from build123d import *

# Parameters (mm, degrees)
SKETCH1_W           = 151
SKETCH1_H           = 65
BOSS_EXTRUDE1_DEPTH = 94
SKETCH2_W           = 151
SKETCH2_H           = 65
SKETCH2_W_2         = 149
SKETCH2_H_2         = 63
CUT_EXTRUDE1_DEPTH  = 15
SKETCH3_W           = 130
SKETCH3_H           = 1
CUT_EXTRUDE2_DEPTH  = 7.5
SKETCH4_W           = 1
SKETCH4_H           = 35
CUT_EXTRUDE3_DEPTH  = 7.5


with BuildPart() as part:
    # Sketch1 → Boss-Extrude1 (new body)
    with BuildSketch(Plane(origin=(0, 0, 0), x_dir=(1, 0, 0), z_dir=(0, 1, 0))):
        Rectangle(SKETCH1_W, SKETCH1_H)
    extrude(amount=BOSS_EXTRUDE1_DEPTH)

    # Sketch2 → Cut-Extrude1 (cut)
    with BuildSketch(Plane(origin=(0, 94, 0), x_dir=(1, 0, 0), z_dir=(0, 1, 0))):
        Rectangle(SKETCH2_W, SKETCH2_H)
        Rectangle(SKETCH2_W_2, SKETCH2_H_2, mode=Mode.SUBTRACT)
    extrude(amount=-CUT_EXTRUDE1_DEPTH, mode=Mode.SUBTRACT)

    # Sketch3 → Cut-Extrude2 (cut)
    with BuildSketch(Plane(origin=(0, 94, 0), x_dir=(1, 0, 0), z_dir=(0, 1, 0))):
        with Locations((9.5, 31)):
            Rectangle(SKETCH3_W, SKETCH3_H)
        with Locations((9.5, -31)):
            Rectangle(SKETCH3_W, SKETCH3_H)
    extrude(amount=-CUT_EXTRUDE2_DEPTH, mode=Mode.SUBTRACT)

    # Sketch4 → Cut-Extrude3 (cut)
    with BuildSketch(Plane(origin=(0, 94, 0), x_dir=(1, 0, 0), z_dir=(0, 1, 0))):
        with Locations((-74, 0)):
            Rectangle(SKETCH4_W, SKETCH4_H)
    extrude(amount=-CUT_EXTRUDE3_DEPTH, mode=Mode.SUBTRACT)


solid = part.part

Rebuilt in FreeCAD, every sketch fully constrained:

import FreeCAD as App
import Part
import Sketcher
from FreeCAD import Vector


def add_polygon(sketch, points):
    """Adds a closed chain of lines whose ends are joined by coincident constraints."""
    first, n = sketch.GeometryCount, len(points)
    for a, b in zip(points, points[1:] + points[:1]):
        sketch.addGeometry(Part.LineSegment(App.Vector(*a, 0), App.Vector(*b, 0)), False)
    for i in range(n):
        sketch.addConstraint(Sketcher.Constraint("Coincident", first + i, 2, first + (i + 1) % n, 1))

doc = App.newDocument("Part")
params = doc.addObject("Spreadsheet::Sheet", "Params")
for row, (alias, value) in enumerate([
    ("sketch1_width", "151 mm"),
    ("sketch1_height", "65 mm"),
    ("pad1_length", "94 mm"),
    ("sketch2_width", "151 mm"),
    ("sketch2_width2", "149 mm"),
    ("sketch2_height", "65 mm"),
    ("sketch2_height2", "63 mm"),
    ("pocket1_length", "15 mm"),
    ("sketch3_width", "130 mm"),
    ("sketch3_height", "1 mm"),
    ("pocket2_length", "7.5 mm"),
    ("sketch4_width", "1 mm"),
    ("sketch4_height", "35 mm"),
    ("pocket3_length", "7.5 mm"),
], start=1):
    params.set(f"A{row}", alias)
    params.set(f"B{row}", "=" + value)
    params.setAlias(f"B{row}", alias)

body = doc.addObject("PartDesign::Body", "Body")

sketch1 = doc.addObject("Sketcher::SketchObject", "Sketch")
body.addObject(sketch1)
sketch1.AttachmentSupport = (doc.XZ_Plane, [""])
sketch1.MapMode = "FlatFace"
add_polygon(sketch1, [(-76, -32), (-76, 32), (76, 32), (76, -32)])
sketch1.addConstraint([
    Sketcher.Constraint("Vertical", 0),
    Sketcher.Constraint("Horizontal", 1),
    Sketcher.Constraint("Vertical", 2),
    Sketcher.Constraint("Horizontal", 3),
    Sketcher.Constraint("Symmetric", 0, 2, 2, 2, -1, 1),
    Sketcher.Constraint("DistanceX", 1, 1, 1, 2, 151.0),
    Sketcher.Constraint("DistanceY", 0, 1, 0, 2, 65.0),
])
sketch1.setExpression("Constraints[9]", "Params.sketch1_width")
sketch1.setExpression("Constraints[10]", "Params.sketch1_height")
pad1 = doc.addObject("PartDesign::Pad", "Pad")
body.addObject(pad1)
pad1.Profile = sketch1
pad1.setExpression("Length", "Params.pad1_length")
pad1.Reversed = True

sketch2 = doc.addObject("Sketcher::SketchObject", "Sketch001")
body.addObject(sketch2)
sketch2.AttachmentSupport = (doc.XZ_Plane, [""])
sketch2.MapMode = "FlatFace"
sketch2.AttachmentOffset = App.Placement(Vector(0, 0, -94), App.Rotation())
add_polygon(sketch2, [(-76, -32), (-76, 32), (76, 32), (76, -32)])
add_polygon(sketch2, [(74, 32), (-74, 32), (-74, -32), (74, -32)])
sketch2.addConstraint([
    Sketcher.Constraint("Vertical", 0),
    Sketcher.Constraint("Horizontal", 1),
    Sketcher.Constraint("Vertical", 2),
    Sketcher.Constraint("Horizontal", 3),
    Sketcher.Constraint("Horizontal", 4),
    Sketcher.Constraint("Vertical", 5),
    Sketcher.Constraint("Horizontal", 6),
    Sketcher.Constraint("Vertical", 7),
    Sketcher.Constraint("Symmetric", 0, 2, 2, 2, -1, 1),
    Sketcher.Constraint("Symmetric", 4, 2, 6, 2, -1, 1),
    Sketcher.Constraint("DistanceX", 1, 1, 1, 2, 151.0),
    Sketcher.Constraint("DistanceX", 4, 2, 4, 1, 149.0),
    Sketcher.Constraint("DistanceY", 0, 1, 0, 2, 65.0),
    Sketcher.Constraint("DistanceY", 5, 2, 5, 1, 63.0),
])
sketch2.setExpression("Constraints[18]", "Params.sketch2_width")
sketch2.setExpression("Constraints[19]", "Params.sketch2_width2")
sketch2.setExpression("Constraints[20]", "Params.sketch2_height")
sketch2.setExpression("Constraints[21]", "Params.sketch2_height2")
pocket1 = doc.addObject("PartDesign::Pocket", "Pocket")
body.addObject(pocket1)
pocket1.Profile = sketch2
pocket1.setExpression("Length", "Params.pocket1_length")
pocket1.Reversed = True

sketch3 = doc.addObject("Sketcher::SketchObject", "Sketch002")
body.addObject(sketch3)
sketch3.AttachmentSupport = (doc.XZ_Plane, [""])
sketch3.MapMode = "FlatFace"
sketch3.AttachmentOffset = App.Placement(Vector(0, 0, -94), App.Rotation())
add_polygon(sketch3, [(-55.5, -31.5), (-55.5, -30.5), (74.5, -30.5), (74.5, -31.5)])
add_polygon(sketch3, [(-55.5, 30.5), (-55.5, 31.5), (74.5, 31.5), (74.5, 30.5)])
sketch3.addConstraint([
    Sketcher.Constraint("Vertical", 0),
    Sketcher.Constraint("Horizontal", 1),
    Sketcher.Constraint("Vertical", 2),
    Sketcher.Constraint("Horizontal", 3),
    Sketcher.Constraint("Vertical", 4),
    Sketcher.Constraint("Horizontal", 5),
    Sketcher.Constraint("Vertical", 6),
    Sketcher.Constraint("Horizontal", 7),
    Sketcher.Constraint("Symmetric", 3, 2, 4, 2, -1),
    Sketcher.Constraint("Symmetric", 1, 2, 6, 2, -1),
    Sketcher.Constraint("DistanceX", 1, 1, 1, 2, 130.0),
    Sketcher.Constraint("DistanceY", 0, 1, 0, 2, 1.0),
    Sketcher.Constraint("DistanceY", 0, 2, 4, 2, 62.0),
    Sketcher.Constraint("DistanceX", 0, 2, -1, 1, 55.5),
])
sketch3.setExpression("Constraints[18]", "Params.sketch3_width")
sketch3.setExpression("Constraints[19]", "Params.sketch3_height")
pocket2 = doc.addObject("PartDesign::Pocket", "Pocket001")
body.addObject(pocket2)
pocket2.Profile = sketch3
pocket2.setExpression("Length", "Params.pocket2_length")
pocket2.Reversed = True

sketch4 = doc.addObject("Sketcher::SketchObject", "Sketch003")
body.addObject(sketch4)
sketch4.AttachmentSupport = (doc.XZ_Plane, [""])
sketch4.MapMode = "FlatFace"
sketch4.AttachmentOffset = App.Placement(Vector(0, 0, -94), App.Rotation())
add_polygon(sketch4, [(-74.5, -17.5), (-74.5, 17.5), (-73.5, 17.5), (-73.5, -17.5)])
sketch4.addConstraint([
    Sketcher.Constraint("Vertical", 0),
    Sketcher.Constraint("Horizontal", 1),
    Sketcher.Constraint("Vertical", 2),
    Sketcher.Constraint("Horizontal", 3),
    Sketcher.Constraint("DistanceX", 1, 1, 1, 2, 1.0),
    Sketcher.Constraint("DistanceY", 0, 1, 0, 2, 35.0),
    Sketcher.Constraint("DistanceX", 0, 2, -1, 1, 74.5),
    Sketcher.Constraint("DistanceY", -1, 1, 0, 2, 17.5),
])
sketch4.setExpression("Constraints[8]", "Params.sketch4_width")
sketch4.setExpression("Constraints[9]", "Params.sketch4_height")
pocket3 = doc.addObject("PartDesign::Pocket", "Pocket002")
body.addObject(pocket3)
pocket3.Profile = sketch4
pocket3.setExpression("Length", "Params.pocket3_length")
pocket3.Reversed = True

doc.recompute()
